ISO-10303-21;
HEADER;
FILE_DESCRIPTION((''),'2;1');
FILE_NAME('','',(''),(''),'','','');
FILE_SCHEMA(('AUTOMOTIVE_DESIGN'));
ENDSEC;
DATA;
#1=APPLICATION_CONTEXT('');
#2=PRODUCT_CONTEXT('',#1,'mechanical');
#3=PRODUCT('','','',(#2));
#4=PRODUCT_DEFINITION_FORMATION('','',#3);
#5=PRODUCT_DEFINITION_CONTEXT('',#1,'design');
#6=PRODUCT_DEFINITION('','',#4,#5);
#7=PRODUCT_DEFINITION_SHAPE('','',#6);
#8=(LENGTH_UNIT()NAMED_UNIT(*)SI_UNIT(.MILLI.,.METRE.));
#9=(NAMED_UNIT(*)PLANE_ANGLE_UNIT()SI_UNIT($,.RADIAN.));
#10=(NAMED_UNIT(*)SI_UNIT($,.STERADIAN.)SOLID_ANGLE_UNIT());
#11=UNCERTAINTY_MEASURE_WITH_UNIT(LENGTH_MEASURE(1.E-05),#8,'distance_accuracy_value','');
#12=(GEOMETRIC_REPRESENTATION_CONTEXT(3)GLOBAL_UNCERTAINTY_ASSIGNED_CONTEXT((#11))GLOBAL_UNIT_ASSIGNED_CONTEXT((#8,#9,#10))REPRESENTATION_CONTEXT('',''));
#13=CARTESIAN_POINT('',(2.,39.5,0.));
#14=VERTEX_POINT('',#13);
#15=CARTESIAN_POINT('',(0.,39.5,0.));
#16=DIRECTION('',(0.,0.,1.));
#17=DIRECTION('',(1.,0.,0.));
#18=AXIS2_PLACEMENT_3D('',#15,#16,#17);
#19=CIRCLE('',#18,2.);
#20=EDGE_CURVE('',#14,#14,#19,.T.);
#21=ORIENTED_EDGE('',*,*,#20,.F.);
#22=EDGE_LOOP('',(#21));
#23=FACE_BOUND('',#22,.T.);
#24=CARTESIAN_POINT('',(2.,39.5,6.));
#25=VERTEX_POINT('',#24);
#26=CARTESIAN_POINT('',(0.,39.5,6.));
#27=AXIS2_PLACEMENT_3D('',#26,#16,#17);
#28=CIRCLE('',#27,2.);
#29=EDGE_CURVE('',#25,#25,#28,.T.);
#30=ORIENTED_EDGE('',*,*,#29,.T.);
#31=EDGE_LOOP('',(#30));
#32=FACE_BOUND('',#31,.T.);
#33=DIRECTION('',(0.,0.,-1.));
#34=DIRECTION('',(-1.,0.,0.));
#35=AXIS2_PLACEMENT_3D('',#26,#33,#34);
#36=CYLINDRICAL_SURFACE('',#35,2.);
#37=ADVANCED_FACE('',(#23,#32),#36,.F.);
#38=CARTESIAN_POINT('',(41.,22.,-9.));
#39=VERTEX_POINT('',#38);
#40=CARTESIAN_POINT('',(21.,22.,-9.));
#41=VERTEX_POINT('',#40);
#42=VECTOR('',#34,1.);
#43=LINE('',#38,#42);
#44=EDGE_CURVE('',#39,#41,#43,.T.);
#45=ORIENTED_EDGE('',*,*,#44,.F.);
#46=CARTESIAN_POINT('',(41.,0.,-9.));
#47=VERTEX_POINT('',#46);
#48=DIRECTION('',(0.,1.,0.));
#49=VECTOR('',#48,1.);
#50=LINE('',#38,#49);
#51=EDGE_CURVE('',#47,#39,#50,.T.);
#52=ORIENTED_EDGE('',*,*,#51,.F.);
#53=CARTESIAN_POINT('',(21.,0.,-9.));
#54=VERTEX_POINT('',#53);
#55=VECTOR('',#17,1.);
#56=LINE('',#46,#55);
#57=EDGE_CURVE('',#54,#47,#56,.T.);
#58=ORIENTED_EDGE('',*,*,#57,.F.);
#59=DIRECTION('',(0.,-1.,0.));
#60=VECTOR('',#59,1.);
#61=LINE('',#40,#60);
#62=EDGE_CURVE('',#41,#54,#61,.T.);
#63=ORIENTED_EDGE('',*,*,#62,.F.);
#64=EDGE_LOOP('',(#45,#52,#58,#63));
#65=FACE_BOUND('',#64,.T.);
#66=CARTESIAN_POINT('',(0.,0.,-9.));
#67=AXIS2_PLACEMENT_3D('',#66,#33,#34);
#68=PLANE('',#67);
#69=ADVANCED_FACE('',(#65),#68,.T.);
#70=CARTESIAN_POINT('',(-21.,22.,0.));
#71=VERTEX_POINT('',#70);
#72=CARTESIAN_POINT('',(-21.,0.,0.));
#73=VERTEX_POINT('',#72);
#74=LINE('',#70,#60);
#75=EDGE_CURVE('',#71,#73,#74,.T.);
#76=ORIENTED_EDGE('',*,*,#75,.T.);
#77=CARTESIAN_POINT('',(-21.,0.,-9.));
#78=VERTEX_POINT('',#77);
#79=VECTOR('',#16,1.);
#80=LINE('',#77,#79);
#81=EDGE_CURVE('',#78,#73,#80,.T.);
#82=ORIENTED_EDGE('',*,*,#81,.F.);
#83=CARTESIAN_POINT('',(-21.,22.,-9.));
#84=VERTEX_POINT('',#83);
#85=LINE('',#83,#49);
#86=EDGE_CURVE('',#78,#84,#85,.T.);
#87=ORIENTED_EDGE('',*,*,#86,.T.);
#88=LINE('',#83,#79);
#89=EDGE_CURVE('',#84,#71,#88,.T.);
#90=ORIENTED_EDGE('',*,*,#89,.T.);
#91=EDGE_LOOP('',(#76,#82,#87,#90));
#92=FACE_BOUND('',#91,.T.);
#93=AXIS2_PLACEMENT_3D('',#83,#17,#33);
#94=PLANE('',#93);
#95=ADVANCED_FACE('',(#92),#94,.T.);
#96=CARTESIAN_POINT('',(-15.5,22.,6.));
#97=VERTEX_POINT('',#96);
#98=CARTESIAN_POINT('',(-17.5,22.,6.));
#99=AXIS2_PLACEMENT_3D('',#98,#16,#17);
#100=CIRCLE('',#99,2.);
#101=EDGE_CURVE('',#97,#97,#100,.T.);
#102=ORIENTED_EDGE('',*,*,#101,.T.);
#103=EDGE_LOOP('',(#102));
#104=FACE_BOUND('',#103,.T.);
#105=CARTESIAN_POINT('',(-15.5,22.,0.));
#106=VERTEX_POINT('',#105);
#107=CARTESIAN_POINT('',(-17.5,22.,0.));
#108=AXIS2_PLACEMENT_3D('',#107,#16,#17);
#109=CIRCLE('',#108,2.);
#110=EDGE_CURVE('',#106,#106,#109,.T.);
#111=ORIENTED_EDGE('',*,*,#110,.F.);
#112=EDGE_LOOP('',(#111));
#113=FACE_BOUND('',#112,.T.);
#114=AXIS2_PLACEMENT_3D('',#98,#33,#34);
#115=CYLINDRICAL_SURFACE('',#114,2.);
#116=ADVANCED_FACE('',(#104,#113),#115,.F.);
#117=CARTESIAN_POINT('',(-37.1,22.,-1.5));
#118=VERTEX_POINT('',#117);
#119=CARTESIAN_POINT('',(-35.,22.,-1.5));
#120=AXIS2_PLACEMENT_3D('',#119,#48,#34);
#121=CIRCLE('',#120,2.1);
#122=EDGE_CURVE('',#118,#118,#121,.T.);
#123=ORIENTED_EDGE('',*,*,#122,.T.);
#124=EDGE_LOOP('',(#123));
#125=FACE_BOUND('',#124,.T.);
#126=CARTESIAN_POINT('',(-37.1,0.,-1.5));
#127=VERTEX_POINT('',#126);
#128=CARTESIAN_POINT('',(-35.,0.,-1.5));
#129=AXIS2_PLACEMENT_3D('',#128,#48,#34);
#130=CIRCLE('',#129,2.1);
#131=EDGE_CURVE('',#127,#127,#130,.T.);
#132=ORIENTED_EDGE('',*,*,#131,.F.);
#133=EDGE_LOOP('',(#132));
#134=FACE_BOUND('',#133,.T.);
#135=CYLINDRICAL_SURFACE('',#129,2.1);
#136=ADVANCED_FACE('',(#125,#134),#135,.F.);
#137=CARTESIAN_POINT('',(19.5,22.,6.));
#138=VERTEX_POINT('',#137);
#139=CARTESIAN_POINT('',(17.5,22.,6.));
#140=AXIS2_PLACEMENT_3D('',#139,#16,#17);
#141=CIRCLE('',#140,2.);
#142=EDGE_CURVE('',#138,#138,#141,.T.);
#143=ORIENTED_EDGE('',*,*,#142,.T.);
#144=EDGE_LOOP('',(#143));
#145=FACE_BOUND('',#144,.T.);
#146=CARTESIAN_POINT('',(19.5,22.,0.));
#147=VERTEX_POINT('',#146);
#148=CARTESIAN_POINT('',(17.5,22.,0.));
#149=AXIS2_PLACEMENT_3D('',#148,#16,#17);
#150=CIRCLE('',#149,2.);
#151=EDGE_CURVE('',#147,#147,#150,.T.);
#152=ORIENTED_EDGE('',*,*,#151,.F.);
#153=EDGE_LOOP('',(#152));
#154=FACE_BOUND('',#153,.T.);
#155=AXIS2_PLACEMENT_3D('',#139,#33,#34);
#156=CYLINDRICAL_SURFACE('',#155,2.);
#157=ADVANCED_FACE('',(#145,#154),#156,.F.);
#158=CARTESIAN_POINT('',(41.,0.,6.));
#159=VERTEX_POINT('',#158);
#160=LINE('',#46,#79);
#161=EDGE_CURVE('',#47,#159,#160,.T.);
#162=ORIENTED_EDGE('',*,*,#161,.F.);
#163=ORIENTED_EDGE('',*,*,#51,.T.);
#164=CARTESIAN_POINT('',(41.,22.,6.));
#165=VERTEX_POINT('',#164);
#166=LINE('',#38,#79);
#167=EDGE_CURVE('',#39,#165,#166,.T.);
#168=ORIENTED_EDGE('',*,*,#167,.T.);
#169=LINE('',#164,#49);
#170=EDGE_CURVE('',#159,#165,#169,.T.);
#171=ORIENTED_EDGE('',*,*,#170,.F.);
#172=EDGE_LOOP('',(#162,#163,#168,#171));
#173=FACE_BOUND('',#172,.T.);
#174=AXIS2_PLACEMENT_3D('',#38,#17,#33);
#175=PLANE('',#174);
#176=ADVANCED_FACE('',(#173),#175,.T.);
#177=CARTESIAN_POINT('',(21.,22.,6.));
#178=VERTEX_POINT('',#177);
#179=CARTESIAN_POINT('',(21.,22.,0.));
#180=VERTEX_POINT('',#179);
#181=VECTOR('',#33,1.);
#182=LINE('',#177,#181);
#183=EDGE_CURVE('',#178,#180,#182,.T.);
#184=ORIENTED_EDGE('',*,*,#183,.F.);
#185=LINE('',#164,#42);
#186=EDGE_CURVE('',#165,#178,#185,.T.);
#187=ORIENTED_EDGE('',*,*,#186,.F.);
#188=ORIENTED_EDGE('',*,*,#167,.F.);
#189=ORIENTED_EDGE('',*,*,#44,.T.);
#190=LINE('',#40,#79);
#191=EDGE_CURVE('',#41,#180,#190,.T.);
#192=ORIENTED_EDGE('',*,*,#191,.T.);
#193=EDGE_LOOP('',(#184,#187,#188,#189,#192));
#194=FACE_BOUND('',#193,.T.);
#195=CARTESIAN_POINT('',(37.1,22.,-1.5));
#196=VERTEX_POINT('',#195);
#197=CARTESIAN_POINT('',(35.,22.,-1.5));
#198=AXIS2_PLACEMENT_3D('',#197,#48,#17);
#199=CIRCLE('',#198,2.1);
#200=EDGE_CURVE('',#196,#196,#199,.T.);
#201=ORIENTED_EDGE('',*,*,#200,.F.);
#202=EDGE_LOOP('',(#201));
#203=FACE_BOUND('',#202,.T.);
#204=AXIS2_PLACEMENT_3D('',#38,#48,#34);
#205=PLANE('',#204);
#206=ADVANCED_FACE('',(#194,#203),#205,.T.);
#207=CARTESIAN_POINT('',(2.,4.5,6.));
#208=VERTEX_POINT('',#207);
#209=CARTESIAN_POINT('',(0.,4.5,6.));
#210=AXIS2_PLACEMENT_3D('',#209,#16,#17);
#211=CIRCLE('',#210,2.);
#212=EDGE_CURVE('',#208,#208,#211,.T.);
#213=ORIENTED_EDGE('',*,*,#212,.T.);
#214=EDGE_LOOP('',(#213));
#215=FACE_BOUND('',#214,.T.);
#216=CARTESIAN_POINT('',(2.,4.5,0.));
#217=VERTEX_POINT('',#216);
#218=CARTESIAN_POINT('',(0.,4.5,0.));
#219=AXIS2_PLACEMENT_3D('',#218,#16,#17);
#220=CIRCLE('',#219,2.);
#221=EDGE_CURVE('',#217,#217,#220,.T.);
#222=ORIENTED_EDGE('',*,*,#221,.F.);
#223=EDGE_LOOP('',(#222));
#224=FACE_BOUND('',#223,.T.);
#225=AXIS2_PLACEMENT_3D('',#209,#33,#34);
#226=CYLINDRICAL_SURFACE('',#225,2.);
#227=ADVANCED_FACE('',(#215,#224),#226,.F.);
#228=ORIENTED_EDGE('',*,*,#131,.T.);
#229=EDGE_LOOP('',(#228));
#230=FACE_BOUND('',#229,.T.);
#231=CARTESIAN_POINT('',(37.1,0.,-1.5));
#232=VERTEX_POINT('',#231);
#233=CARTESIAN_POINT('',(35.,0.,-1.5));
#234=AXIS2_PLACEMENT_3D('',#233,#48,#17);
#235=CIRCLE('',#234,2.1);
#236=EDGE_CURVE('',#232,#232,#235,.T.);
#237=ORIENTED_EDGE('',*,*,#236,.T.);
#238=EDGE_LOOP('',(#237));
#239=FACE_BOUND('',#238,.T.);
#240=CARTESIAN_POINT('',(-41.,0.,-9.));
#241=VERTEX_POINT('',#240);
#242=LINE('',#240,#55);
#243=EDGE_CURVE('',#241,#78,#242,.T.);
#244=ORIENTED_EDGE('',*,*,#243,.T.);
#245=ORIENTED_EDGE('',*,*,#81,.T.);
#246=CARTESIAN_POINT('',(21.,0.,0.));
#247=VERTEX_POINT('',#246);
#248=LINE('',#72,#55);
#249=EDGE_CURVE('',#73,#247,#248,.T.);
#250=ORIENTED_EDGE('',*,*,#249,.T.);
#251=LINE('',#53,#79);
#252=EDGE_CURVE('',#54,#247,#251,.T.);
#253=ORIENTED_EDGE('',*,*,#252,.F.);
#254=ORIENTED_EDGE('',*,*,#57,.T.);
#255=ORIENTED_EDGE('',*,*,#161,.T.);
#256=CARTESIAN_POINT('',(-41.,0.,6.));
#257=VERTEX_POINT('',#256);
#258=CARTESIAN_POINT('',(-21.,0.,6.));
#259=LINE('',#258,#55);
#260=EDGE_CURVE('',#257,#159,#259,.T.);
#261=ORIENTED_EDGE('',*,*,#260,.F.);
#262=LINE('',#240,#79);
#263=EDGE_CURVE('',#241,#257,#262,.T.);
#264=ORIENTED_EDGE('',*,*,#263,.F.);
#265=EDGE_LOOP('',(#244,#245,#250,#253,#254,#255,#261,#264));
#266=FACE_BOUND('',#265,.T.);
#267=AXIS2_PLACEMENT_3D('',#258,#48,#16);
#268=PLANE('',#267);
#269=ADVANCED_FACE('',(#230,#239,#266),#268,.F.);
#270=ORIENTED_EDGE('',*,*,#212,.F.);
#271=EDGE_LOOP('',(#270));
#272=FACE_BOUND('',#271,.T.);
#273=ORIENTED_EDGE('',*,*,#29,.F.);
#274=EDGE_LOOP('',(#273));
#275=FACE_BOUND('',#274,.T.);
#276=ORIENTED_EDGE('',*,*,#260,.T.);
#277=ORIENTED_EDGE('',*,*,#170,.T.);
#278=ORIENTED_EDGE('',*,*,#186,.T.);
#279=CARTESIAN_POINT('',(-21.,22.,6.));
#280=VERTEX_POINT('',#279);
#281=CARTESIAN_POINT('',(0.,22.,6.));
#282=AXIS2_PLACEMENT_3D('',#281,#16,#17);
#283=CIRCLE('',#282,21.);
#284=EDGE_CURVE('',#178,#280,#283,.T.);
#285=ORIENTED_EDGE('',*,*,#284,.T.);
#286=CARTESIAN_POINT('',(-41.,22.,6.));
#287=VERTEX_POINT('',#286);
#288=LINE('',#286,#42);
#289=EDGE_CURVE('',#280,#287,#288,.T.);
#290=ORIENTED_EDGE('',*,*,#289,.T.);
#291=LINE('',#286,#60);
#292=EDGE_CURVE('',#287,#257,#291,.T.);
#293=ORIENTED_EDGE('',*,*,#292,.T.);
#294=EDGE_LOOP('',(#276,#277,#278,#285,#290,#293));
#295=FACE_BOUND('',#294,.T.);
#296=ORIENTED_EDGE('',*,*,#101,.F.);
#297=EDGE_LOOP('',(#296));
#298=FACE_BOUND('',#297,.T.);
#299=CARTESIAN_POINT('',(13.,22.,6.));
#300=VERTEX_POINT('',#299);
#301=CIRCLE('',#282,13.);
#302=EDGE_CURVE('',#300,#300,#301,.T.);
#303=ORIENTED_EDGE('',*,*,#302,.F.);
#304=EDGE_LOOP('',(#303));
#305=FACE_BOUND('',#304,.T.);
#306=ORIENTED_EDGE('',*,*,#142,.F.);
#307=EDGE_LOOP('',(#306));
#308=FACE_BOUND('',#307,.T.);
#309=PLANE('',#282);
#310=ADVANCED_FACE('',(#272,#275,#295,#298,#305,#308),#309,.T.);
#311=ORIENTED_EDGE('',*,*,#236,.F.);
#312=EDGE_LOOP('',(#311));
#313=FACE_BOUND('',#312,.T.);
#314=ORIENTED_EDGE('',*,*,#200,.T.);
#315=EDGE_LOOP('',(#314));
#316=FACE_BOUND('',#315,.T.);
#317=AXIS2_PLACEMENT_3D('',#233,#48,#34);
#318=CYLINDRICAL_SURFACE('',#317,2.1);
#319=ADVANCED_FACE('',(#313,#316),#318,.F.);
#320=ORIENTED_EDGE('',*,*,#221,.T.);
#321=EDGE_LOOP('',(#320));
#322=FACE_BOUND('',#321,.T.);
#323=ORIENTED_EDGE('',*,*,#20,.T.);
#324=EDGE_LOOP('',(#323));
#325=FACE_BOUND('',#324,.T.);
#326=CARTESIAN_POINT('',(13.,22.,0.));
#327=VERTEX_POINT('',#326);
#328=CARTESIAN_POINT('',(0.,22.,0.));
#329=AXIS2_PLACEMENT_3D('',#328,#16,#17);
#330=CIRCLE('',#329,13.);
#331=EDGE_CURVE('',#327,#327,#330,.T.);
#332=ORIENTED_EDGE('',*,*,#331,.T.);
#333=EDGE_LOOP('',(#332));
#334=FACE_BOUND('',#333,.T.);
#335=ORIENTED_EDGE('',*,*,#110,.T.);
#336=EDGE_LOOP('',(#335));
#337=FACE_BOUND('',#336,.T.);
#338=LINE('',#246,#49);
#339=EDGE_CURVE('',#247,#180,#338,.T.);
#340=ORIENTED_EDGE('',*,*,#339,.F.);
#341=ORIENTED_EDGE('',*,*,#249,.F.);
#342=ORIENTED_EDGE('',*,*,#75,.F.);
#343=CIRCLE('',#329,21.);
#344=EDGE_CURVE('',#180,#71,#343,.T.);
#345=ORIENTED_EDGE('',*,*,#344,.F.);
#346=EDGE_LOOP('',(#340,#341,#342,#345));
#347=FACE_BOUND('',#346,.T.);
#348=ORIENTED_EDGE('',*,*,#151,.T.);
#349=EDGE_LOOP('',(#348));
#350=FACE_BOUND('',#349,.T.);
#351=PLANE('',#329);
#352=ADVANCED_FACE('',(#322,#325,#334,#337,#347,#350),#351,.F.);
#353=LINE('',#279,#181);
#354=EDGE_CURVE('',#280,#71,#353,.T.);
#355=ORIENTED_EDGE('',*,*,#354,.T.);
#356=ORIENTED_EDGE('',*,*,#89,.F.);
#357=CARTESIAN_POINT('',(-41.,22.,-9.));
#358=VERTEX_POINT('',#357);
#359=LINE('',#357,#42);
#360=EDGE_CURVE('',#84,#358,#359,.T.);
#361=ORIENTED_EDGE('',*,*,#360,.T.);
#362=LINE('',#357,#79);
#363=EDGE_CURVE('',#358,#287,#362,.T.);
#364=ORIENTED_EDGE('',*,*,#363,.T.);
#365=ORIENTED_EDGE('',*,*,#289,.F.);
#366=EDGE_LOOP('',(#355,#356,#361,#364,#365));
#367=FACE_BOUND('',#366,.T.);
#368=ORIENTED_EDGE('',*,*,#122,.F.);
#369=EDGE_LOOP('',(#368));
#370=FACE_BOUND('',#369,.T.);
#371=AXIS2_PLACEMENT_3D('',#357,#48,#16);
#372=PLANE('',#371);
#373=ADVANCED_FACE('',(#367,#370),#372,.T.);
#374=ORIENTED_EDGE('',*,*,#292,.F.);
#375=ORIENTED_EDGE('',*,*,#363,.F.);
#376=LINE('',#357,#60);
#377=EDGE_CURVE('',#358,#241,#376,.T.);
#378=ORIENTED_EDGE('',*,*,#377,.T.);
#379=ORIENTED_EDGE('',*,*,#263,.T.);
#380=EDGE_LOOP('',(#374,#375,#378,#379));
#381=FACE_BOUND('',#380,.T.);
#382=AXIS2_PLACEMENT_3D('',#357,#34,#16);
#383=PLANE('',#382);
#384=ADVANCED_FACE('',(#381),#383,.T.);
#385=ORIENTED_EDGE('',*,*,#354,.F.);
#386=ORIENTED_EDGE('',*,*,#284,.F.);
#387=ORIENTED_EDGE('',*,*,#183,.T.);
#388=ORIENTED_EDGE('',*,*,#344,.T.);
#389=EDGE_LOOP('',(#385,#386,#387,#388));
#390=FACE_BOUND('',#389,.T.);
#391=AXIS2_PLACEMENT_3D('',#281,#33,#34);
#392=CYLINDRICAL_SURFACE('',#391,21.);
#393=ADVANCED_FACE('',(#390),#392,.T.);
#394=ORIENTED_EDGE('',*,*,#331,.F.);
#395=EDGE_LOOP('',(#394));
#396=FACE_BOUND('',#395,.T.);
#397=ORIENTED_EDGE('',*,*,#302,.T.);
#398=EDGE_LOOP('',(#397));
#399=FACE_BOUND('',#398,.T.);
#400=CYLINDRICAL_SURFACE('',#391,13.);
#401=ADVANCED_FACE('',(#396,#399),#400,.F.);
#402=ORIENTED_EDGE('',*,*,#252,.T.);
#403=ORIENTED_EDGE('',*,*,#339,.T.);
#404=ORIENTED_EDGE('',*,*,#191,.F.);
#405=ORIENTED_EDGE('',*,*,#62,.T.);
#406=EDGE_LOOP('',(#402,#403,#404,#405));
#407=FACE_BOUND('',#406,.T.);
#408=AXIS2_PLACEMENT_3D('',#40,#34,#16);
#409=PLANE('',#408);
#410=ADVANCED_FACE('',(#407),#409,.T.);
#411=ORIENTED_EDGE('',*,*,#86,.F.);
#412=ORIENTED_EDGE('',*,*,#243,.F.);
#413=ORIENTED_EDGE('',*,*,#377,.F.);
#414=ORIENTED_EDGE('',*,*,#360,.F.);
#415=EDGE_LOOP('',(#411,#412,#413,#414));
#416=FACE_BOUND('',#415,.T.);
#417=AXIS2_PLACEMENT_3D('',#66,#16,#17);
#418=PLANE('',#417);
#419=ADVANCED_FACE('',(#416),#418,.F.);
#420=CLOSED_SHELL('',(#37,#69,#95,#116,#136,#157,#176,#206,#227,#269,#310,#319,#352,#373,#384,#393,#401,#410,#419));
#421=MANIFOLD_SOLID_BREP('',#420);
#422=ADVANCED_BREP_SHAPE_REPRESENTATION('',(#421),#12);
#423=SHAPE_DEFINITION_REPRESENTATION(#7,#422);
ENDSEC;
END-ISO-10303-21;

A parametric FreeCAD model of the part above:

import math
import FreeCAD as App
import Part
import Sketcher

V = App.Vector


def add_polygon(sketch, points):
    """Adds a closed chain of lines whose ends are joined by coincident constraints."""
    first, n = sketch.GeometryCount, len(points)
    for a, b in zip(points, points[1:] + points[:1]):
        sketch.addGeometry(Part.LineSegment(App.Vector(*a, 0), App.Vector(*b, 0)), False)
    for i in range(n):
        sketch.addConstraint(Sketcher.Constraint("Coincident", first + i, 2, first + (i + 1) % n, 1))

doc = App.newDocument("Part")
body = doc.addObject("PartDesign::Body", "Body")

# Sketch on XY plane
sketch1 = body.newObject("Sketcher::SketchObject", "Sketch")
sketch1.AttachmentSupport = (doc.getObject("XY_Plane"), [""])
sketch1.MapMode = "FlatFace"
sketch1.addGeometry([
    Part.LineSegment(V(-21, 22, 0), V(-21, 0, 0)),  # 0
    Part.LineSegment(V(-21, 0, 0), V(21, 0, 0)),  # 1
    Part.LineSegment(V(21, 0, 0), V(21, 22, 0)),  # 2
    Part.ArcOfCircle(Part.Circle(V(0, 22, 0), V(0, 0, 1), 21), math.radians(0), math.radians(180)),  # 3
    Part.Circle(V(0, 4.5, 0), V(0, 0, 1), 2),  # 4
    Part.Circle(V(-17.5, 22, 0), V(0, 0, 1), 2),  # 5
    Part.Circle(V(0, 22, 0), V(0, 0, 1), 13),  # 6
    Part.Circle(V(17.5, 22, 0), V(0, 0, 1), 2),  # 7
    Part.Circle(V(0, 39.5, 0), V(0, 0, 1), 2),  # 8
], False)
sketch1.addConstraint([
    Sketcher.Constraint("Coincident", 0, 2, 1, 1),
    Sketcher.Constraint("Coincident", 1, 2, 2, 1),
    Sketcher.Constraint("Tangent", 2, 2, 3, 1),
    Sketcher.Constraint("Tangent", 3, 2, 0, 1),
    Sketcher.Constraint("Vertical", 0),
    Sketcher.Constraint("Horizontal", 1),
    Sketcher.Constraint("Vertical", 2),
    Sketcher.Constraint("Coincident", 6, 3, 3, 3),
    Sketcher.Constraint("Equal", 4, 5),
    Sketcher.Constraint("Equal", 5, 7),
    Sketcher.Constraint("Equal", 7, 8),
    Sketcher.Constraint("Symmetric", 0, 2, 1, 2, -1, 1),
    Sketcher.Constraint("Symmetric", 5, 3, 7, 3, -2),
    Sketcher.Constraint("PointOnObject", 4, 3, -2),
    Sketcher.Constraint("PointOnObject", 8, 3, -2),
    Sketcher.Constraint("Horizontal", 3, 3, 5, 3),
    Sketcher.Constraint("Diameter", 4, 4.0),
    Sketcher.Constraint("Diameter", 6, 26.0),
    Sketcher.Constraint("Radius", 3, 21.0),
    Sketcher.Constraint("DistanceY", 0, 2, 0, 1, 22.0),
    Sketcher.Constraint("DistanceX", 5, 3, 7, 3, 35.0),
    Sketcher.Constraint("DistanceY", 4, 3, 8, 3, 35.0),
    Sketcher.Constraint("DistanceY", -1, 1, 4, 3, 4.5),
])
pad1 = body.newObject("PartDesign::Pad", "Pad")
pad1.Profile = sketch1
pad1.Length = 6

# Sketch on XY plane
sketch2 = body.newObject("Sketcher::SketchObject", "Sketch001")
sketch2.AttachmentSupport = (doc.getObject("XY_Plane"), [""])
sketch2.MapMode = "FlatFace"
sketch2.AttachmentOffset = App.Placement(V(0, 0, 6), App.Rotation())
add_polygon(sketch2, [(-41, 22), (-41, 0), (-21, 0), (-21, 22)])  # lines 0-3
add_polygon(sketch2, [(21, 22), (21, 0), (41, 0), (41, 22)])  # lines 4-7
sketch2.addConstraint([
    Sketcher.Constraint("Vertical", 0),
    Sketcher.Constraint("Horizontal", 1),
    Sketcher.Constraint("Vertical", 2),
    Sketcher.Constraint("Horizontal", 3),
    Sketcher.Constraint("Vertical", 4),
    Sketcher.Constraint("Horizontal", 5),
    Sketcher.Constraint("Vertical", 6),
    Sketcher.Constraint("Horizontal", 7),
    Sketcher.Constraint("Symmetric", 1, 2, 4, 2, -1, 1),
    Sketcher.Constraint("Symmetric", 0, 2, 5, 2, -2),
    Sketcher.Constraint("Horizontal", 3, 2, 6, 2),
    Sketcher.Constraint("DistanceX", 1, 1, 1, 2, 20.0),
    Sketcher.Constraint("DistanceY", 0, 2, 0, 1, 22.0),
    Sketcher.Constraint("DistanceX", 0, 2, -1, 1, 41.0),
])
pad2 = body.newObject("PartDesign::Pad", "Pad001")
pad2.Profile = sketch2
pad2.Length = 15
pad2.Reversed = True

# Sketch on XZ plane
sketch3 = body.newObject("Sketcher::SketchObject", "Sketch002")
sketch3.AttachmentSupport = (doc.getObject("XZ_Plane"), [""])
sketch3.MapMode = "FlatFace"
sketch3.AttachmentOffset = App.Placement(V(0, 0, -22), App.Rotation())
sketch3.addGeometry([
    Part.Circle(V(-35, -1.5, 0), V(0, 0, 1), 2.1),
    Part.Circle(V(35, -1.5, 0), V(0, 0, 1), 2.1),
], False)
sketch3.addConstraint([
    Sketcher.Constraint("Equal", 0, 1),
    Sketcher.Constraint("Symmetric", 0, 3, 1, 3, -2),
    Sketcher.Constraint("Diameter", 0, 4.2),
    Sketcher.Constraint("DistanceX", 0, 3, -1, 1, 35.0),
    Sketcher.Constraint("DistanceY", 0, 3, -1, 1, 1.5),
])
pocket1 = body.newObject("PartDesign::Pocket", "Pocket")
pocket1.Profile = sketch3
pocket1.Type = "ThroughAll"
pocket1.Reversed = True

doc.recompute()
